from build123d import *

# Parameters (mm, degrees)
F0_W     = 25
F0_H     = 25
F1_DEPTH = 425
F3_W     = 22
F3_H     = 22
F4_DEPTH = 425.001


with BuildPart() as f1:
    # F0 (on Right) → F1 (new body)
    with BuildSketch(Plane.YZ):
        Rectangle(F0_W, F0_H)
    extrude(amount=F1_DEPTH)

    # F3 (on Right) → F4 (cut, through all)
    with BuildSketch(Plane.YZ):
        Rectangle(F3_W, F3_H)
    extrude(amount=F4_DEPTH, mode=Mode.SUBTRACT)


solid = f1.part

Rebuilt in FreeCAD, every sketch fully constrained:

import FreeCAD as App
import Part
import Sketcher
from FreeCAD import Vector

doc = App.newDocument("Part")
body = doc.addObject("PartDesign::Body", "Body")

sketch1 = body.newObject("Sketcher::SketchObject", "Sketch")
sketch1.AttachmentSupport = (doc.getObject("YZ_Plane"), [""])
sketch1.MapMode = "FlatFace"
sketch1.addGeometry([
    Part.LineSegment(Vector(-12.5, 12.5, 0), Vector(-12.5, -12.5, 0)),
    Part.LineSegment(Vector(-12.5, -12.5, 0), Vector(12.5, -12.5, 0)),
    Part.LineSegment(Vector(12.5, -12.5, 0), Vector(12.5, 12.5, 0)),
    Part.LineSegment(Vector(12.5, 12.5, 0), Vector(-12.5, 12.5, 0)),
], False)
sketch1.addConstraint([
    Sketcher.Constraint("Coincident", 0, 2, 1, 1),
    Sketcher.Constraint("Coincident", 1, 2, 2, 1),
    Sketcher.Constraint("Coincident", 2, 2, 3, 1),
    Sketcher.Constraint("Coincident", 3, 2, 0, 1),
    Sketcher.Constraint("Vertical", 0),
    Sketcher.Constraint("Horizontal", 1),
    Sketcher.Constraint("Vertical", 2),
    Sketcher.Constraint("Horizontal", 3),
    Sketcher.Constraint("Symmetric", 0, 2, 2, 2, -1, 1),
    Sketcher.Constraint("Equal", 3, 0),
    Sketcher.Constraint("DistanceX", 1, 1, 1, 2, 25.0),
])
pad1 = body.newObject("PartDesign::Pad", "Pad")
pad1.Profile = sketch1
pad1.Length = 425

sketch2 = body.newObject("Sketcher::SketchObject", "Sketch001")
sketch2.AttachmentSupport = (doc.getObject("YZ_Plane"), [""])
sketch2.MapMode = "FlatFace"
sketch2.addGeometry([
    Part.LineSegment(Vector(-11, 11, 0), Vector(-11, -11, 0)),
    Part.LineSegment(Vector(-11, -11, 0), Vector(11, -11, 0)),
    Part.LineSegment(Vector(11, -11, 0), Vector(11, 11, 0)),
    Part.LineSegment(Vector(11, 11, 0), Vector(-11, 11, 0)),
], False)
sketch2.addConstraint([
    Sketcher.Constraint("Coincident", 0, 2, 1, 1),
    Sketcher.Constraint("Coincident", 1, 2, 2, 1),
    Sketcher.Constraint("Coincident", 2, 2, 3, 1),
    Sketcher.Constraint("Coincident", 3, 2, 0, 1),
    Sketcher.Constraint("Vertical", 0),
    Sketcher.Constraint("Horizontal", 1),
    Sketcher.Constraint("Vertical", 2),
    Sketcher.Constraint("Horizontal", 3),
    Sketcher.Constraint("Symmetric", 0, 2, 2, 2, -1, 1),
    Sketcher.Constraint("Equal", 3, 0),
    Sketcher.Constraint("DistanceX", 1, 1, 1, 2, 22.0),
])
pocket1 = body.newObject("PartDesign::Pocket", "Pocket")
pocket1.Profile = sketch2
pocket1.Type = "ThroughAll"
pocket1.Reversed = True

doc.recompute()
